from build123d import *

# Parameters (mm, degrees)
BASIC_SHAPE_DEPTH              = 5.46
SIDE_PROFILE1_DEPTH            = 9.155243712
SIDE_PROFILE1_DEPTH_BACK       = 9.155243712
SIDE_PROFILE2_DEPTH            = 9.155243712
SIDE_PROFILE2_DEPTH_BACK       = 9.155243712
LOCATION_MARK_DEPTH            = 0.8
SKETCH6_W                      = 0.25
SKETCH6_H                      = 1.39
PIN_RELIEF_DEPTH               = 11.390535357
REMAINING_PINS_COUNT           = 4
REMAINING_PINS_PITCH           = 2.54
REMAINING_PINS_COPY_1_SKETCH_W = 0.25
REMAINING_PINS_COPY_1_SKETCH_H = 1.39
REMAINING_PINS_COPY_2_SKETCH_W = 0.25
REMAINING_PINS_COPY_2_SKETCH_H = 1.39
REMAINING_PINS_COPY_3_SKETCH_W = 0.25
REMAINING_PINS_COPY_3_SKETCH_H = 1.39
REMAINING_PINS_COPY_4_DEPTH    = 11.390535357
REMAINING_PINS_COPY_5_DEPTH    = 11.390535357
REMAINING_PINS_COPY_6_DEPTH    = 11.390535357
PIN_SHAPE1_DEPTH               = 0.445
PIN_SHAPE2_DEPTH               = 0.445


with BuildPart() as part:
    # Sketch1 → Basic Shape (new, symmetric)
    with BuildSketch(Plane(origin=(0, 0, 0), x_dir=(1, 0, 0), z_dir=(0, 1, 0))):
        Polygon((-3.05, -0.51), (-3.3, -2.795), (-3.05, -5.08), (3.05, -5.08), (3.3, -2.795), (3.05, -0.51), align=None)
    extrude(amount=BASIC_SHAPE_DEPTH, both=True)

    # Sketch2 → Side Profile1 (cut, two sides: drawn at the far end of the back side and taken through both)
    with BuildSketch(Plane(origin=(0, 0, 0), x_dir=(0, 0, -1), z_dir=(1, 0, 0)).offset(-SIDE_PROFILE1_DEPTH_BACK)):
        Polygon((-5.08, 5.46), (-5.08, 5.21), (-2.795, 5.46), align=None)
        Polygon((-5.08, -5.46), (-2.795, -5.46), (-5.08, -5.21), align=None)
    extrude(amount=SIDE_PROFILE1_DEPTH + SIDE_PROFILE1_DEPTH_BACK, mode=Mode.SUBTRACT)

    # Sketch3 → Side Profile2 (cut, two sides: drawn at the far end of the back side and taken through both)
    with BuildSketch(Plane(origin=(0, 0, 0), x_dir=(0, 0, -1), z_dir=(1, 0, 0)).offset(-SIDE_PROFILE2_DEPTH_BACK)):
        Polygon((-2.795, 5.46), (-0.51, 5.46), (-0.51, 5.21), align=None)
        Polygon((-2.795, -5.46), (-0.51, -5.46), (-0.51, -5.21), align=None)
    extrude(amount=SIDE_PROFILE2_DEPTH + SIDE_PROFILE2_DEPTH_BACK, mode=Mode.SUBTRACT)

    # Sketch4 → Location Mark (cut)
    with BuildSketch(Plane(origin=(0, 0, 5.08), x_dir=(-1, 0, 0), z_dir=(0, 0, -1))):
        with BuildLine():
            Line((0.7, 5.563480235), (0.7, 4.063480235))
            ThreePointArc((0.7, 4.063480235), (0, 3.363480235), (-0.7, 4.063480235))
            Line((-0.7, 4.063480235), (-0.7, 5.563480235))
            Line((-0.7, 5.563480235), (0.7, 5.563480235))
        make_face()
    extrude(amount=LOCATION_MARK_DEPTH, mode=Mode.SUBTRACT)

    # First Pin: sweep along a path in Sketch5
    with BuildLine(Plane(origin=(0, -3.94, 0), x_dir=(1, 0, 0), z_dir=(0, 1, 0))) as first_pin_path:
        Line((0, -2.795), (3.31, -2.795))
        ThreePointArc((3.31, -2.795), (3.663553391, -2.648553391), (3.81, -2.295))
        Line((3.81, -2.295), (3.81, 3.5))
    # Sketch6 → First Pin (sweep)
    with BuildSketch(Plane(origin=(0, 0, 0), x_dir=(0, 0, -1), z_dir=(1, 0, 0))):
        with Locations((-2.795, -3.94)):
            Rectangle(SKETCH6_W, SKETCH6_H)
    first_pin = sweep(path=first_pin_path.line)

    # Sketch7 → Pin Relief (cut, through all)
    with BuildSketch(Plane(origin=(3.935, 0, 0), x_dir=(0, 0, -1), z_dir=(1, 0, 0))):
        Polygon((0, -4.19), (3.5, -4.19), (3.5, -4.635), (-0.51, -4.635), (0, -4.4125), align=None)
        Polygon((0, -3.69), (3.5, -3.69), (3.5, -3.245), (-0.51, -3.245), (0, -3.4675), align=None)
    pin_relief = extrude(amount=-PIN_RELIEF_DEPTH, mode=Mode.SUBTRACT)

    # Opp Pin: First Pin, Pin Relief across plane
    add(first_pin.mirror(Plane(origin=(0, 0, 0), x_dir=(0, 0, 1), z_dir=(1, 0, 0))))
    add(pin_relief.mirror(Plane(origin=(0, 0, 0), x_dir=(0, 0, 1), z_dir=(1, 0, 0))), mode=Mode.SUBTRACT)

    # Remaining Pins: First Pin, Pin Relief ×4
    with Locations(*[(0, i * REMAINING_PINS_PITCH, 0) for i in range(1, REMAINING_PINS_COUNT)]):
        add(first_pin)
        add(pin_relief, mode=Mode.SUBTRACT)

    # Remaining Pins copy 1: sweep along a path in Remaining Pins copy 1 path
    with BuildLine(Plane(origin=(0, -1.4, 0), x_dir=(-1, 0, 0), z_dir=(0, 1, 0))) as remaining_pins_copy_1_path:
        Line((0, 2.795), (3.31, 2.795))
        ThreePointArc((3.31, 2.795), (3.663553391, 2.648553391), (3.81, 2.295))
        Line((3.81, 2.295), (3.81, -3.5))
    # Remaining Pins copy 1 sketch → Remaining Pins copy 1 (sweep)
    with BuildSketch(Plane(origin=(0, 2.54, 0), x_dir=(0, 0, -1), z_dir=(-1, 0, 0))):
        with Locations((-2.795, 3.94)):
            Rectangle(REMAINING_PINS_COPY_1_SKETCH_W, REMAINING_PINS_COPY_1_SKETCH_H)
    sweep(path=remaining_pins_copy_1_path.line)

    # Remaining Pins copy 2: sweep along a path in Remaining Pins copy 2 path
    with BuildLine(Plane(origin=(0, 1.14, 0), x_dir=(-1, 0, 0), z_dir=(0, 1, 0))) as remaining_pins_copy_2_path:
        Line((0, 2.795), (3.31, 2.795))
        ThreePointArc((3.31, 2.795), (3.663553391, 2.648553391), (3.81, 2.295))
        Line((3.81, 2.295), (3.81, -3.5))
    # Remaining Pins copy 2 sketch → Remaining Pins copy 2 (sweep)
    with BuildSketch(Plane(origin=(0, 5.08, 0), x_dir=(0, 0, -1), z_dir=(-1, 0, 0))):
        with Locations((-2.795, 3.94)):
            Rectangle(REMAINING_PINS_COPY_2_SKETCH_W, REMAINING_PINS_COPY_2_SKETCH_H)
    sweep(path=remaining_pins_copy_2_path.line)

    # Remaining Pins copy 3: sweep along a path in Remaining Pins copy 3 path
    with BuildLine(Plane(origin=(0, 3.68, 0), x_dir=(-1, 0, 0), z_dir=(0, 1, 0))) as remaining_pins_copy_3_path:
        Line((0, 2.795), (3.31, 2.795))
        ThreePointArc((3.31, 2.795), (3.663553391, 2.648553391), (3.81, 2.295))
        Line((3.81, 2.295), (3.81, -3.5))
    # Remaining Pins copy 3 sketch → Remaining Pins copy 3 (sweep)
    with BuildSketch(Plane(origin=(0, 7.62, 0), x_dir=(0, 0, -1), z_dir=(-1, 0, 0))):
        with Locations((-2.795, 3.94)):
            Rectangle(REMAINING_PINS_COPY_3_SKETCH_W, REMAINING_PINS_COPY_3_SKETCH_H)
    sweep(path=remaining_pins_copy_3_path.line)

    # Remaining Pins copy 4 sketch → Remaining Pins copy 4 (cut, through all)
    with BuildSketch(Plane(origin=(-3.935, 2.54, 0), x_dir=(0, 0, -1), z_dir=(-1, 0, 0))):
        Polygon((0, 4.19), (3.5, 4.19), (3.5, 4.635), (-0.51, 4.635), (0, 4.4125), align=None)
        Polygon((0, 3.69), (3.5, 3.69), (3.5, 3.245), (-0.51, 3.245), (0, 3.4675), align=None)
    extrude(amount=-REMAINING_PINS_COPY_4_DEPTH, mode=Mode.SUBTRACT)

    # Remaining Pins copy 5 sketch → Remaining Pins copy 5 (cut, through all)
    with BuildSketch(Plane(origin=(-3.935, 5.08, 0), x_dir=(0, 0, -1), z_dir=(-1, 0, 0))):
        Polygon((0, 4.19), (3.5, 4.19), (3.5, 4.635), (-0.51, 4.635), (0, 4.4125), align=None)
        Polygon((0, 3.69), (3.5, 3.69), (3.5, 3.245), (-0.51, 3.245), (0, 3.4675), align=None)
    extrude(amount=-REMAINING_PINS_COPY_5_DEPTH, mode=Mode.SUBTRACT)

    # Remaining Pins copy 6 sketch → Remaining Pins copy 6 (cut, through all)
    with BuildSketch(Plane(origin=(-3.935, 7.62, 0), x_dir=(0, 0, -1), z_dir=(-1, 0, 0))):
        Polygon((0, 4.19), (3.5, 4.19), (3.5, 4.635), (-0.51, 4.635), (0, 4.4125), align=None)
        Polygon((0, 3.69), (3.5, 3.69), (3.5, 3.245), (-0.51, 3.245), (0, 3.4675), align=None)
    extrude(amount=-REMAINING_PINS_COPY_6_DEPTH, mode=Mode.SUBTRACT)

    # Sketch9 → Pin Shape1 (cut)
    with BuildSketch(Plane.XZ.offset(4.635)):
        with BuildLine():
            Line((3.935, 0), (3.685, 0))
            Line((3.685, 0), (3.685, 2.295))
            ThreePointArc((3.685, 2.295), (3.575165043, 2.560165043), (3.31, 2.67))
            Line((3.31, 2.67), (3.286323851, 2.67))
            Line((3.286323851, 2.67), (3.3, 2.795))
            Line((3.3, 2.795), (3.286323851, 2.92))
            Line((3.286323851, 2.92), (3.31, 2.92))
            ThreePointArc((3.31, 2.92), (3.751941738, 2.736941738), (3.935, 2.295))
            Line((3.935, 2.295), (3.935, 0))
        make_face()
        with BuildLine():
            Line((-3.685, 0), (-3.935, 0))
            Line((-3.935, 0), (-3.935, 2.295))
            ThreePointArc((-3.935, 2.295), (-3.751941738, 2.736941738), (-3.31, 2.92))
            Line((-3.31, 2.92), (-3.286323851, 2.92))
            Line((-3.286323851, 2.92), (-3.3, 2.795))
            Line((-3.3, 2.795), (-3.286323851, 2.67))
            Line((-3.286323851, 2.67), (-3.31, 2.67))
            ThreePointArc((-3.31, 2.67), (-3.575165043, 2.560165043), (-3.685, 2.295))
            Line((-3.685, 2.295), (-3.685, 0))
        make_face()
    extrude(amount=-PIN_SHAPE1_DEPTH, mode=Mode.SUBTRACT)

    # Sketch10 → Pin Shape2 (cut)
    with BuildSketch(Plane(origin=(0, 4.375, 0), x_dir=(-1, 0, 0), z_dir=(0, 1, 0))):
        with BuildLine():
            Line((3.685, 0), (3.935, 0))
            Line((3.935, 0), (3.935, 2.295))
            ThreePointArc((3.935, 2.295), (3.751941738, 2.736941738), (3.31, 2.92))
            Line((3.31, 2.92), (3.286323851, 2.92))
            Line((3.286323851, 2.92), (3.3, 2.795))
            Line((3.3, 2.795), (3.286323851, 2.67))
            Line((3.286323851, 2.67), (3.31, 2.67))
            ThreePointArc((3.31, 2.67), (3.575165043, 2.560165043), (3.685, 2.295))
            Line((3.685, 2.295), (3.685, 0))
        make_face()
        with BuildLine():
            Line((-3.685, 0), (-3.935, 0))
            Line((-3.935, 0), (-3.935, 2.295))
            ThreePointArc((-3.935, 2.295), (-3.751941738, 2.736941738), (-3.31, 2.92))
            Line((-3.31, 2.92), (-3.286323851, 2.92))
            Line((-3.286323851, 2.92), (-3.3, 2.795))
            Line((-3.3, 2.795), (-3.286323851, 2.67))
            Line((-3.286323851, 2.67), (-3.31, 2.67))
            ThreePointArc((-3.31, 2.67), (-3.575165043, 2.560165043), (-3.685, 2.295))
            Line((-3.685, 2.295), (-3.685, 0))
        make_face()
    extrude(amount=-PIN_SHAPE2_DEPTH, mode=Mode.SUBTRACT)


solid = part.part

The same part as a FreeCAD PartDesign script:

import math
import FreeCAD as App
import Part
import Sketcher

V = App.Vector

doc = App.newDocument("Part")
params = doc.addObject("Spreadsheet::Sheet", "Params")
for row, (alias, value) in enumerate([
    ("sketch1_width", "6.1 mm"),
    ("pad1_length", "10.92 mm"),
    ("sketch2_width", "0.25 mm"),
    ("sketch3_width", "0.25 mm"),
    ("sketch4_radius", "0.7 mm"),
    ("sketch4_height", "1.5 mm"),
    ("pocket3_length", "0.8 mm"),
    ("sketch5_width", "1.39 mm"),
    ("sketch5_height", "0.25 mm"),
    ("sketch6_radius", "0.5 mm"),
    ("sketch6_width", "3.31 mm"),
    ("sketch7_height", "3.5 mm"),
    ("sketch7_height2", "4.01 mm"),
    ("linearpattern_pitch", "2.54 mm"),
    ("sketch8_width", "1.39 mm"),
    ("sketch8_height", "0.25 mm"),
    ("sketch9_radius", "0.5 mm"),
    ("sketch9_width", "3.31 mm"),
    ("sketch10_width", "1.39 mm"),
    ("sketch10_height", "0.25 mm"),
    ("sketch11_radius", "0.5 mm"),
    ("sketch11_width", "3.31 mm"),
    ("sketch12_width", "1.39 mm"),
    ("sketch12_height", "0.25 mm"),
    ("sketch13_radius", "0.5 mm"),
    ("sketch13_width", "3.31 mm"),
    ("sketch14_height", "3.5 mm"),
    ("sketch14_height2", "4.01 mm"),
    ("sketch15_height", "3.5 mm"),
    ("sketch15_height2", "4.01 mm"),
    ("sketch16_height", "3.5 mm"),
    ("sketch16_height2", "4.01 mm"),
    ("pocket8_length", "0.445 mm"),
    ("pocket9_length", "0.445 mm"),
], start=1):
    params.set(f"A{row}", alias)
    params.set(f"B{row}", "=" + value)
    params.setAlias(f"B{row}", alias)

body = doc.addObject("PartDesign::Body", "Body")

sketch1 = body.newObject("Sketcher::SketchObject", "Sketch")
sketch1.AttachmentSupport = (doc.getObject("XZ_Plane"), [""])
sketch1.MapMode = "FlatFace"
sketch1.addGeometry([
    Part.LineSegment(V(-3, 0.5, 0), V(-3.3, 2.8, 0)),
    Part.LineSegment(V(-3.3, 2.8, 0), V(-3, 5.1, 0)),
    Part.LineSegment(V(-3, 5.1, 0), V(3, 5.1, 0)),
    Part.LineSegment(V(3, 5.1, 0), V(3.3, 2.8, 0)),
    Part.LineSegment(V(3.3, 2.8, 0), V(3, 0.5, 0)),
    Part.LineSegment(V(3, 0.5, 0), V(-3, 0.5, 0)),
], False)
sketch1.addConstraint([
    Sketcher.Constraint("Coincident", 0, 2, 1, 1),
    Sketcher.Constraint("Coincident", 1, 2, 2, 1),
    Sketcher.Constraint("Coincident", 2, 2, 3, 1),
    Sketcher.Constraint("Coincident", 3, 2, 4, 1),
    Sketcher.Constraint("Coincident", 4, 2, 5, 1),
    Sketcher.Constraint("Coincident", 5, 2, 0, 1),
    Sketcher.Constraint("Horizontal", 2),
    Sketcher.Constraint("Horizontal", 5),
    Sketcher.Constraint("Symmetric", 0, 2, 3, 2, -2),
    Sketcher.Constraint("Parallel", 0, 3),
    Sketcher.Constraint("Parallel", 1, 4),
    Sketcher.Constraint("Vertical", 2, 2, 4, 2),
    Sketcher.Constraint("Vertical", 1, 2, 5, 2),
    Sketcher.Constraint("DistanceX", 2, 1, 2, 2, 6.1),
    Sketcher.Constraint("DistanceX", 0, 2, -1, 1, 3.3),
    Sketcher.Constraint("DistanceY", -1, 1, 1, 2, 5.08),
    Sketcher.Constraint("DistanceY", -1, 1, 4, 2, 0.51),
])
sketch1.setExpression("Constraints[13]", "Params.sketch1_width")
pad1 = body.newObject("PartDesign::Pad", "Pad")
pad1.Profile = sketch1
pad1.setExpression("Length", "Params.pad1_length")
pad1.Midplane = True

sketch2 = body.newObject("Sketcher::SketchObject", "Sketch001")
sketch2.AttachmentSupport = (doc.getObject("YZ_Plane"), [""])
sketch2.MapMode = "FlatFace"
sketch2.addGeometry([
    Part.LineSegment(V(5.46, 5.08, 0), V(5.21, 5.08, 0)),
    Part.LineSegment(V(5.21, 5.08, 0), V(5.46, 2.79, 0)),
    Part.LineSegment(V(5.46, 2.79, 0), V(5.46, 5.08, 0)),
    Part.LineSegment(V(-5.46, 5.08, 0), V(-5.46, 2.79, 0)),
    Part.LineSegment(V(-5.46, 2.79, 0), V(-5.21, 5.08, 0)),
    Part.LineSegment(V(-5.21, 5.08, 0), V(-5.46, 5.08, 0)),
], False)
sketch2.addConstraint([
    Sketcher.Constraint("Coincident", 0, 2, 1, 1),
    Sketcher.Constraint("Coincident", 1, 2, 2, 1),
    Sketcher.Constraint("Coincident", 2, 2, 0, 1),
    Sketcher.Constraint("Coincident", 3, 2, 4, 1),
    Sketcher.Constraint("Coincident", 4, 2, 5, 1),
    Sketcher.Constraint("Coincident", 5, 2, 3, 1),
    Sketcher.Constraint("Horizontal", 0),
    Sketcher.Constraint("Vertical", 2),
    Sketcher.Constraint("Vertical", 3),
    Sketcher.Constraint("Horizontal", 5),
    Sketcher.Constraint("Symmetric", 1, 2, 3, 2, -2),
    Sketcher.Constraint("Symmetric", 0, 2, 4, 2, -2),
    Sketcher.Constraint("DistanceX", 0, 2, 0, 1, 0.25),
    Sketcher.Constraint("DistanceY", 2, 1, 2, 2, 2.285),
    Sketcher.Constraint("DistanceX", -1, 1, 0, 2, 5.21),
    Sketcher.Constraint("DistanceY", -1, 1, 0, 2, 5.08),
])
sketch2.setExpression("Constraints[12]", "Params.sketch2_width")
pocket1 = body.newObject("PartDesign::Pocket", "Pocket")
pocket1.Profile = sketch2
pocket1.Type = "ThroughAll"
pocket1.Midplane = True

sketch3 = body.newObject("Sketcher::SketchObject", "Sketch002")
sketch3.AttachmentSupport = (doc.getObject("YZ_Plane"), [""])
sketch3.MapMode = "FlatFace"
sketch3.addGeometry([
    Part.LineSegment(V(5.46, 0.51, 0), V(5.46, 2.79, 0)),
    Part.LineSegment(V(5.46, 2.79, 0), V(5.21, 0.51, 0)),
    Part.LineSegment(V(5.21, 0.51, 0), V(5.46, 0.51, 0)),
    Part.LineSegment(V(-5.46, 2.79, 0), V(-5.46, 0.51, 0)),
    Part.LineSegment(V(-5.46, 0.51, 0), V(-5.21, 0.51, 0)),
    Part.LineSegment(V(-5.21, 0.51, 0), V(-5.46, 2.79, 0)),
], False)
sketch3.addConstraint([
    Sketcher.Constraint("Coincident", 0, 2, 1, 1),
    Sketcher.Constraint("Coincident", 1, 2, 2, 1),
    Sketcher.Constraint("Coincident", 2, 2, 0, 1),
    Sketcher.Constraint("Coincident", 3, 2, 4, 1),
    Sketcher.Constraint("Coincident", 4, 2, 5, 1),
    Sketcher.Constraint("Coincident", 5, 2, 3, 1),
    Sketcher.Constraint("Vertical", 0),
    Sketcher.Constraint("Horizontal", 2),
    Sketcher.Constraint("Vertical", 3),
    Sketcher.Constraint("Horizontal", 4),
    Sketcher.Constraint("Symmetric", 2, 2, 3, 2, -2),
    Sketcher.Constraint("Horizontal", 0, 2, 5, 2),
    Sketcher.Constraint("Equal", 2, 4),
    Sketcher.Constraint("DistanceX", 2, 1, 2, 2, 0.25),
    Sketcher.Constraint("DistanceY", 0, 1, 0, 2, 2.285),
    Sketcher.Constraint("DistanceX", -1, 1, 0, 2, 5.46),
    Sketcher.Constraint("DistanceY", -1, 1, 1, 2, 0.51),
])
sketch3.setExpression("Constraints[13]", "Params.sketch3_width")
pocket2 = body.newObject("PartDesign::Pocket", "Pocket001")
pocket2.Profile = sketch3
pocket2.Type = "ThroughAll"
pocket2.Midplane = True

sketch4 = body.newObject("Sketcher::SketchObject", "Sketch003")
sketch4.AttachmentSupport = (doc.getObject("XY_Plane"), [""])
sketch4.MapMode = "FlatFace"
sketch4.AttachmentOffset = App.Placement(V(0, 0, 5.08), App.Rotation())
sketch4.addGeometry([
    Part.LineSegment(V(-0.7, 4.1, 0), V(-0.7, 5.6, 0)),
    Part.LineSegment(V(-0.7, 5.6, 0), V(0.7, 5.6, 0)),
    Part.LineSegment(V(0.7, 5.6, 0), V(0.7, 4.1, 0)),
    Part.ArcOfCircle(Part.Circle(V(0, 4.1, 0), V(0, 0, 1), 0.7), math.radians(180), math.radians(360)),
], False)
sketch4.addConstraint([
    Sketcher.Constraint("Coincident", 0, 2, 1, 1),
    Sketcher.Constraint("Coincident", 1, 2, 2, 1),
    Sketcher.Constraint("Tangent", 2, 2, 3, 2),
    Sketcher.Constraint("Tangent", 3, 1, 0, 1),
    Sketcher.Constraint("Vertical", 0),
    Sketcher.Constraint("Horizontal", 1),
    Sketcher.Constraint("Vertical", 2),
    Sketcher.Constraint("PointOnObject", 3, 3, -2),
    Sketcher.Constraint("Radius", 3, 0.7),
    Sketcher.Constraint("DistanceY", 0, 1, 0, 2, 1.5),
    Sketcher.Constraint("DistanceY", -1, 1, 3, 3, 4.06348),
])
sketch4.setExpression("Constraints[8]", "Params.sketch4_radius")
sketch4.setExpression("Constraints[9]", "Params.sketch4_height")
pocket3 = body.newObject("PartDesign::Pocket", "Pocket002")
pocket3.Profile = sketch4
pocket3.setExpression("Length", "Params.pocket3_length")

sketch5 = body.newObject("Sketcher::SketchObject", "Sketch004")
sketch5.AttachmentSupport = (doc.getObject("YZ_Plane"), [""])
sketch5.MapMode = "FlatFace"
sketch5.addGeometry([
    Part.LineSegment(V(-3.25, 2.92, 0), V(-4.63, 2.92, 0)),
    Part.LineSegment(V(-4.63, 2.92, 0), V(-4.63, 2.67, 0)),
    Part.LineSegment(V(-4.63, 2.67, 0), V(-3.25, 2.67, 0)),
    Part.LineSegment(V(-3.25, 2.67, 0), V(-3.25, 2.92, 0)),
], False)
sketch5.addConstraint([
    Sketcher.Constraint("Coincident", 0, 2, 1, 1),
    Sketcher.Constraint("Coincident", 1, 2, 2, 1),
    Sketcher.Constraint("Coincident", 2, 2, 3, 1),
    Sketcher.Constraint("Coincident", 3, 2, 0, 1),
    Sketcher.Constraint("Horizontal", 0),
    Sketcher.Constraint("Vertical", 1),
    Sketcher.Constraint("Horizontal", 2),
    Sketcher.Constraint("Vertical", 3),
    Sketcher.Constraint("DistanceX", 0, 2, 0, 1, 1.39),
    Sketcher.Constraint("DistanceY", 1, 2, 1, 1, 0.25),
    Sketcher.Constraint("DistanceY", -1, 1, 0, 2, 2.92),
    Sketcher.Constraint("DistanceX", 0, 2, -1, 1, 4.635),
])
sketch5.setExpression("Constraints[8]", "Params.sketch5_width")
sketch5.setExpression("Constraints[9]", "Params.sketch5_height")

sketch6 = body.newObject("Sketcher::SketchObject", "Sketch005")
sketch6.AttachmentSupport = (doc.getObject("XZ_Plane"), [""])
sketch6.MapMode = "FlatFace"
sketch6.AttachmentOffset = App.Placement(V(0, 0, 3.94), App.Rotation())
sketch6.addGeometry([
    Part.LineSegment(V(0, 2.79, 0), V(3.31, 2.79, 0)),
    Part.ArcOfCircle(Part.Circle(V(3.31, 2.3, 0), V(0, 0, 1), 0.5), math.radians(0), math.radians(90)),
    Part.LineSegment(V(3.81, 2.29, 0), V(3.81, -3.5, 0)),
], False)
sketch6.addConstraint([
    Sketcher.Constraint("Tangent", 0, 2, 1, 2),
    Sketcher.Constraint("Tangent", 1, 1, 2, 1),
    Sketcher.Constraint("Horizontal", 0),
    Sketcher.Constraint("Vertical", 2),
    Sketcher.Constraint("PointOnObject", 0, 1, -2),
    Sketcher.Constraint("Radius", 1, 0.5),
    Sketcher.Constraint("DistanceX", 0, 1, 0, 2, 3.31),
    Sketcher.Constraint("DistanceY", 2, 2, -1, 1, 3.5),
    Sketcher.Constraint("DistanceY", 2, 2, 2, 1, 5.795),
])
sketch6.setExpression("Constraints[5]", "Params.sketch6_radius")
sketch6.setExpression("Constraints[6]", "Params.sketch6_width")
doc.recompute()

additivepipe = body.newObject("PartDesign::AdditivePipe", "AdditivePipe")
additivepipe.Profile = sketch5
additivepipe.Spine = (sketch6, ["Edge1", "Edge2", "Edge3"])

sketch7 = body.newObject("Sketcher::SketchObject", "Sketch006")
sketch7.AttachmentSupport = (doc.getObject("YZ_Plane"), [""])
sketch7.MapMode = "FlatFace"
sketch7.AttachmentOffset = App.Placement(V(0, 0, 3.935), App.Rotation())
sketch7.addGeometry([
    Part.LineSegment(V(-4.19, -3.5, 0), V(-4.19, 0, 0)),
    Part.LineSegment(V(-4.19, 0, 0), V(-4.41, 0, 0)),
    Part.LineSegment(V(-4.41, 0, 0), V(-4.63, 0.51, 0)),
    Part.LineSegment(V(-4.63, 0.51, 0), V(-4.63, -3.5, 0)),
    Part.LineSegment(V(-4.63, -3.5, 0), V(-4.19, -3.5, 0)),
    Part.LineSegment(V(-3.69, 0, 0), V(-3.69, -3.5, 0)),
    Part.LineSegment(V(-3.69, -3.5, 0), V(-3.25, -3.5, 0)),
    Part.LineSegment(V(-3.25, -3.5, 0), V(-3.25, 0.51, 0)),
    Part.LineSegment(V(-3.25, 0.51, 0), V(-3.47, 0, 0)),
    Part.LineSegment(V(-3.47, 0, 0), V(-3.69, 0, 0)),
], False)
sketch7.addConstraint([
    Sketcher.Constraint("Coincident", 0, 2, 1, 1),
    Sketcher.Constraint("Coincident", 1, 2, 2, 1),
    Sketcher.Constraint("Coincident", 2, 2, 3, 1),
    Sketcher.Constraint("Coincident", 3, 2, 4, 1),
    Sketcher.Constraint("Coincident", 4, 2, 0, 1),
    Sketcher.Constraint("Coincident", 5, 2, 6, 1),
    Sketcher.Constraint("Coincident", 6, 2, 7, 1),
    Sketcher.Constraint("Coincident", 7, 2, 8, 1),
    Sketcher.Constraint("Coincident", 8, 2, 9, 1),
    Sketcher.Constraint("Coincident", 9, 2, 5, 1),
    Sketcher.Constraint("Vertical", 0),
    Sketcher.Constraint("Horizontal", 1),
    Sketcher.Constraint("Vertical", 3),
    Sketcher.Constraint("Horizontal", 4),
    Sketcher.Constraint("Vertical", 5),
    Sketcher.Constraint("Horizontal", 6),
    Sketcher.Constraint("Vertical", 7),
    Sketcher.Constraint("Horizontal", 9),
    Sketcher.Constraint("PointOnObject", 0, 2, -1),
    Sketcher.Constraint("PointOnObject", 8, 2, -1),
    Sketcher.Constraint("Horizontal", 4, 2, 5, 2),
    Sketcher.Constraint("Horizontal", 2, 2, 7, 2),
    Sketcher.Constraint("Equal", 4, 6),
    Sketcher.Constraint("Equal", 1, 9),
    Sketcher.Constraint("DistanceY", 0, 1, 0, 2, 3.5),
    Sketcher.Constraint("DistanceY", 3, 2, 3, 1, 4.01),
    Sketcher.Constraint("DistanceX", 4, 2, 5, 2, 0.5),
    Sketcher.Constraint("DistanceX", 4, 1, 4, 2, 0.445),
    Sketcher.Constraint("DistanceX", 0, 2, -1, 1, 4.19),
    Sketcher.Constraint("DistanceX", 1, 2, 1, 1, 0.2225),
])
sketch7.setExpression("Constraints[24]", "Params.sketch7_height")
sketch7.setExpression("Constraints[25]", "Params.sketch7_height2")
pocket4 = body.newObject("PartDesign::Pocket", "Pocket003")
pocket4.Profile = sketch7
pocket4.Type = "ThroughAll"
doc.recompute()

mirrored = body.newObject("PartDesign::Mirrored", "Mirrored")
mirrored.Originals = [additivepipe, pocket4]
mirrored.MirrorPlane = (doc.getObject("YZ_Plane"), [""])
body.Tip = mirrored
doc.recompute()

linearpattern = body.newObject("PartDesign::LinearPattern", "LinearPattern")
linearpattern.Originals = [additivepipe, pocket4]
linearpattern.Direction = (doc.getObject("Y_Axis"), [""])
linearpattern.Mode = "offset"
linearpattern.setExpression("Offset", "Params.linearpattern_pitch")
linearpattern.Occurrences = 4
body.Tip = linearpattern

sketch8 = body.newObject("Sketcher::SketchObject", "Sketch007")
sketch8.AttachmentSupport = (doc.getObject("YZ_Plane"), [""])
sketch8.MapMode = "FlatFace"
sketch8.addGeometry([
    Part.LineSegment(V(-2.1, 2.92, 0), V(-0.7, 2.92, 0)),
    Part.LineSegment(V(-0.7, 2.92, 0), V(-0.7, 2.67, 0)),
    Part.LineSegment(V(-0.7, 2.67, 0), V(-2.1, 2.67, 0)),
    Part.LineSegment(V(-2.1, 2.67, 0), V(-2.1, 2.92, 0)),
], False)
sketch8.addConstraint([
    Sketcher.Constraint("Coincident", 0, 2, 1, 1),
    Sketcher.Constraint("Coincident", 1, 2, 2, 1),
    Sketcher.Constraint("Coincident", 2, 2, 3, 1),
    Sketcher.Constraint("Coincident", 3, 2, 0, 1),
    Sketcher.Constraint("Horizontal", 0),
    Sketcher.Constraint("Vertical", 1),
    Sketcher.Constraint("Horizontal", 2),
    Sketcher.Constraint("Vertical", 3),
    Sketcher.Constraint("DistanceX", 0, 1, 0, 2, 1.39),
    Sketcher.Constraint("DistanceY", 1, 2, 1, 1, 0.25),
    Sketcher.Constraint("DistanceY", -1, 1, 0, 2, 2.92),
    Sketcher.Constraint("DistanceX", 0, 2, -1, 1, 0.705),
])
sketch8.setExpression("Constraints[8]", "Params.sketch8_width")
sketch8.setExpression("Constraints[9]", "Params.sketch8_height")

sketch9 = body.newObject("Sketcher::SketchObject", "Sketch008")
sketch9.AttachmentSupport = (doc.getObject("XZ_Plane"), [""])
sketch9.MapMode = "FlatFace"
sketch9.AttachmentOffset = App.Placement(V(0, 0, 1.4), App.Rotation())
sketch9.addGeometry([
    Part.LineSegment(V(0, 2.79, 0), V(-3.31, 2.79, 0)),
    Part.ArcOfCircle(Part.Circle(V(-3.31, 2.3, 0), V(0, 0, 1), 0.5), math.radians(90), math.radians(180)),
    Part.LineSegment(V(-3.81, 2.29, 0), V(-3.81, -3.5, 0)),
], False)
sketch9.addConstraint([
    Sketcher.Constraint("Tangent", 0, 2, 1, 1),
    Sketcher.Constraint("Tangent", 1, 2, 2, 1),
    Sketcher.Constraint("Horizontal", 0),
    Sketcher.Constraint("Vertical", 2),
    Sketcher.Constraint("PointOnObject", 0, 1, -2),
    Sketcher.Constraint("Radius", 1, 0.5),
    Sketcher.Constraint("DistanceX", 0, 2, 0, 1, 3.31),
    Sketcher.Constraint("DistanceY", 2, 2, -1, 1, 3.5),
    Sketcher.Constraint("DistanceY", 2, 2, 2, 1, 5.795),
])
sketch9.setExpression("Constraints[5]", "Params.sketch9_radius")
sketch9.setExpression("Constraints[6]", "Params.sketch9_width")
doc.recompute()

additivepipe2 = body.newObject("PartDesign::AdditivePipe", "AdditivePipe001")
additivepipe2.Profile = sketch8
additivepipe2.Spine = (sketch9, ["Edge1", "Edge2", "Edge3"])

sketch10 = body.newObject("Sketcher::SketchObject", "Sketch009")
sketch10.AttachmentSupport = (doc.getObject("YZ_Plane"), [""])
sketch10.MapMode = "FlatFace"
sketch10.addGeometry([
    Part.LineSegment(V(0.45, 2.92, 0), V(1.83, 2.92, 0)),
    Part.LineSegment(V(1.83, 2.92, 0), V(1.83, 2.67, 0)),
    Part.LineSegment(V(1.83, 2.67, 0), V(0.45, 2.67, 0)),
    Part.LineSegment(V(0.45, 2.67, 0), V(0.45, 2.92, 0)),
], False)
sketch10.addConstraint([
    Sketcher.Constraint("Coincident", 0, 2, 1, 1),
    Sketcher.Constraint("Coincident", 1, 2, 2, 1),
    Sketcher.Constraint("Coincident", 2, 2, 3, 1),
    Sketcher.Constraint("Coincident", 3, 2, 0, 1),
    Sketcher.Constraint("Horizontal", 0),
    Sketcher.Constraint("Vertical", 1),
    Sketcher.Constraint("Horizontal", 2),
    Sketcher.Constraint("Vertical", 3),
    Sketcher.Constraint("DistanceX", 0, 1, 0, 2, 1.39),
    Sketcher.Constraint("DistanceY", 1, 2, 1, 1, 0.25),
    Sketcher.Constraint("DistanceY", -1, 1, 0, 2, 2.92),
    Sketcher.Constraint("DistanceX", -1, 1, 0, 2, 1.835),
])
sketch10.setExpression("Constraints[8]", "Params.sketch10_width")
sketch10.setExpression("Constraints[9]", "Params.sketch10_height")

sketch11 = body.newObject("Sketcher::SketchObject", "Sketch010")
sketch11.AttachmentSupport = (doc.getObject("XZ_Plane"), [""])
sketch11.MapMode = "FlatFace"
sketch11.AttachmentOffset = App.Placement(V(0, 0, -1.14), App.Rotation())
sketch11.addGeometry([
    Part.LineSegment(V(0, 2.79, 0), V(-3.31, 2.79, 0)),
    Part.ArcOfCircle(Part.Circle(V(-3.31, 2.3, 0), V(0, 0, 1), 0.5), math.radians(90), math.radians(180)),
    Part.LineSegment(V(-3.81, 2.29, 0), V(-3.81, -3.5, 0)),
], False)
sketch11.addConstraint([
    Sketcher.Constraint("Tangent", 0, 2, 1, 1),
    Sketcher.Constraint("Tangent", 1, 2, 2, 1),
    Sketcher.Constraint("Horizontal", 0),
    Sketcher.Constraint("Vertical", 2),
    Sketcher.Constraint("PointOnObject", 0, 1, -2),
    Sketcher.Constraint("Radius", 1, 0.5),
    Sketcher.Constraint("DistanceX", 0, 2, 0, 1, 3.31),
    Sketcher.Constraint("DistanceY", 2, 2, -1, 1, 3.5),
    Sketcher.Constraint("DistanceY", 2, 2, 2, 1, 5.795),
])
sketch11.setExpression("Constraints[5]", "Params.sketch11_radius")
sketch11.setExpression("Constraints[6]", "Params.sketch11_width")
doc.recompute()

additivepipe3 = body.newObject("PartDesign::AdditivePipe", "AdditivePipe002")
additivepipe3.Profile = sketch10
additivepipe3.Spine = (sketch11, ["Edge1", "Edge2", "Edge3"])

sketch12 = body.newObject("Sketcher::SketchObject", "Sketch011")
sketch12.AttachmentSupport = (doc.getObject("YZ_Plane"), [""])
sketch12.MapMode = "FlatFace"
sketch12.addGeometry([
    Part.LineSegment(V(2.98, 2.92, 0), V(4.38, 2.92, 0)),
    Part.LineSegment(V(4.38, 2.92, 0), V(4.38, 2.67, 0)),
    Part.LineSegment(V(4.38, 2.67, 0), V(2.98, 2.67, 0)),
    Part.LineSegment(V(2.98, 2.67, 0), V(2.98, 2.92, 0)),
], False)
sketch12.addConstraint([
    Sketcher.Constraint("Coincident", 0, 2, 1, 1),
    Sketcher.Constraint("Coincident", 1, 2, 2, 1),
    Sketcher.Constraint("Coincident", 2, 2, 3, 1),
    Sketcher.Constraint("Coincident", 3, 2, 0, 1),
    Sketcher.Constraint("Horizontal", 0),
    Sketcher.Constraint("Vertical", 1),
    Sketcher.Constraint("Horizontal", 2),
    Sketcher.Constraint("Vertical", 3),
    Sketcher.Constraint("DistanceX", 0, 1, 0, 2, 1.39),
    Sketcher.Constraint("DistanceY", 1, 2, 1, 1, 0.25),
    Sketcher.Constraint("DistanceY", -1, 1, 0, 2, 2.92),
    Sketcher.Constraint("DistanceX", -1, 1, 0, 2, 4.375),
])
sketch12.setExpression("Constraints[8]", "Params.sketch12_width")
sketch12.setExpression("Constraints[9]", "Params.sketch12_height")

sketch13 = body.newObject("Sketcher::SketchObject", "Sketch012")
sketch13.AttachmentSupport = (doc.getObject("XZ_Plane"), [""])
sketch13.MapMode = "FlatFace"
sketch13.AttachmentOffset = App.Placement(V(0, 0, -3.68), App.Rotation())
sketch13.addGeometry([
    Part.LineSegment(V(0, 2.79, 0), V(-3.31, 2.79, 0)),
    Part.ArcOfCircle(Part.Circle(V(-3.31, 2.3, 0), V(0, 0, 1), 0.5), math.radians(90), math.radians(180)),
    Part.LineSegment(V(-3.81, 2.29, 0), V(-3.81, -3.5, 0)),
], False)
sketch13.addConstraint([
    Sketcher.Constraint("Tangent", 0, 2, 1, 1),
    Sketcher.Constraint("Tangent", 1, 2, 2, 1),
    Sketcher.Constraint("Horizontal", 0),
    Sketcher.Constraint("Vertical", 2),
    Sketcher.Constraint("PointOnObject", 0, 1, -2),
    Sketcher.Constraint("Radius", 1, 0.5),
    Sketcher.Constraint("DistanceX", 0, 2, 0, 1, 3.31),
    Sketcher.Constraint("DistanceY", 2, 2, -1, 1, 3.5),
    Sketcher.Constraint("DistanceY", 2, 2, 2, 1, 5.795),
])
sketch13.setExpression("Constraints[5]", "Params.sketch13_radius")
sketch13.setExpression("Constraints[6]", "Params.sketch13_width")
doc.recompute()

additivepipe4 = body.newObject("PartDesign::AdditivePipe", "AdditivePipe003")
additivepipe4.Profile = sketch12
additivepipe4.Spine = (sketch13, ["Edge1", "Edge2", "Edge3"])

sketch14 = body.newObject("Sketcher::SketchObject", "Sketch013")
sketch14.AttachmentSupport = (doc.getObject("YZ_Plane"), [""])
sketch14.MapMode = "FlatFace"
sketch14.AttachmentOffset = App.Placement(V(0, 0, -3.935), App.Rotation())
sketch14.addGeometry([
    Part.LineSegment(V(-1.65, 0, 0), V(-1.65, -3.5, 0)),
    Part.LineSegment(V(-1.65, -3.5, 0), V(-2.1, -3.5, 0)),
    Part.LineSegment(V(-2.1, -3.5, 0), V(-2.1, 0.51, 0)),
    Part.LineSegment(V(-2.1, 0.51, 0), V(-1.87, 0, 0)),
    Part.LineSegment(V(-1.87, 0, 0), V(-1.65, 0, 0)),
    Part.LineSegment(V(-1.15, -3.5, 0), V(-1.15, 0, 0)),
    Part.LineSegment(V(-1.15, 0, 0), V(-0.93, 0, 0)),
    Part.LineSegment(V(-0.93, 0, 0), V(-0.7, 0.51, 0)),
    Part.LineSegment(V(-0.7, 0.51, 0), V(-0.7, -3.5, 0)),
    Part.LineSegment(V(-0.7, -3.5, 0), V(-1.15, -3.5, 0)),
], False)
sketch14.addConstraint([
    Sketcher.Constraint("Coincident", 0, 2, 1, 1),
    Sketcher.Constraint("Coincident", 1, 2, 2, 1),
    Sketcher.Constraint("Coincident", 2, 2, 3, 1),
    Sketcher.Constraint("Coincident", 3, 2, 4, 1),
    Sketcher.Constraint("Coincident", 4, 2, 0, 1),
    Sketcher.Constraint("Coincident", 5, 2, 6, 1),
    Sketcher.Constraint("Coincident", 6, 2, 7, 1),
    Sketcher.Constraint("Coincident", 7, 2, 8, 1),
    Sketcher.Constraint("Coincident", 8, 2, 9, 1),
    Sketcher.Constraint("Coincident", 9, 2, 5, 1),
    Sketcher.Constraint("Vertical", 0),
    Sketcher.Constraint("Horizontal", 1),
    Sketcher.Constraint("Vertical", 2),
    Sketcher.Constraint("Horizontal", 4),
    Sketcher.Constraint("Vertical", 5),
    Sketcher.Constraint("Horizontal", 6),
    Sketcher.Constraint("Vertical", 8),
    Sketcher.Constraint("Horizontal", 9),
    Sketcher.Constraint("PointOnObject", 3, 2, -1),
    Sketcher.Constraint("PointOnObject", 5, 2, -1),
    Sketcher.Constraint("Horizontal", 2, 2, 7, 2),
    Sketcher.Constraint("Horizontal", 1, 2, 8, 2),
    Sketcher.Constraint("Equal", 4, 6),
    Sketcher.Constraint("Equal", 1, 9),
    Sketcher.Constraint("DistanceY", 0, 2, 0, 1, 3.5),
    Sketcher.Constraint("DistanceY", 2, 1, 2, 2, 4.01),
    Sketcher.Constraint("DistanceX", 4, 2, 5, 2, 0.5),
    Sketcher.Constraint("DistanceX", 1, 2, 1, 1, 0.445),
    Sketcher.Constraint("DistanceX", 0, 2, -1, 1, 1.65),
    Sketcher.Constraint("DistanceX", 4, 1, 4, 2, 0.2225),
])
sketch14.setExpression("Constraints[24]", "Params.sketch14_height")
sketch14.setExpression("Constraints[25]", "Params.sketch14_height2")
pocket5 = body.newObject("PartDesign::Pocket", "Pocket004")
pocket5.Profile = sketch14
pocket5.Type = "ThroughAll"
pocket5.Reversed = True

sketch15 = body.newObject("Sketcher::SketchObject", "Sketch014")
sketch15.AttachmentSupport = (doc.getObject("YZ_Plane"), [""])
sketch15.MapMode = "FlatFace"
sketch15.AttachmentOffset = App.Placement(V(0, 0, -3.935), App.Rotation())
sketch15.addGeometry([
    Part.LineSegment(V(0.89, 0, 0), V(0.89, -3.5, 0)),
    Part.LineSegment(V(0.89, -3.5, 0), V(0.45, -3.5, 0)),
    Part.LineSegment(V(0.45, -3.5, 0), V(0.45, 0.51, 0)),
    Part.LineSegment(V(0.45, 0.51, 0), V(0.67, 0, 0)),
    Part.LineSegment(V(0.67, 0, 0), V(0.89, 0, 0)),
    Part.LineSegment(V(1.39, -3.5, 0), V(1.39, 0, 0)),
    Part.LineSegment(V(1.39, 0, 0), V(1.61, 0, 0)),
    Part.LineSegment(V(1.61, 0, 0), V(1.83, 0.51, 0)),
    Part.LineSegment(V(1.83, 0.51, 0), V(1.83, -3.5, 0)),
    Part.LineSegment(V(1.83, -3.5, 0), V(1.39, -3.5, 0)),
], False)
sketch15.addConstraint([
    Sketcher.Constraint("Coincident", 0, 2, 1, 1),
    Sketcher.Constraint("Coincident", 1, 2, 2, 1),
    Sketcher.Constraint("Coincident", 2, 2, 3, 1),
    Sketcher.Constraint("Coincident", 3, 2, 4, 1),
    Sketcher.Constraint("Coincident", 4, 2, 0, 1),
    Sketcher.Constraint("Coincident", 5, 2, 6, 1),
    Sketcher.Constraint("Coincident", 6, 2, 7, 1),
    Sketcher.Constraint("Coincident", 7, 2, 8, 1),
    Sketcher.Constraint("Coincident", 8, 2, 9, 1),
    Sketcher.Constraint("Coincident", 9, 2, 5, 1),
    Sketcher.Constraint("Vertical", 0),
    Sketcher.Constraint("Horizontal", 1),
    Sketcher.Constraint("Vertical", 2),
    Sketcher.Constraint("Horizontal", 4),
    Sketcher.Constraint("Vertical", 5),
    Sketcher.Constraint("Horizontal", 6),
    Sketcher.Constraint("Vertical", 8),
    Sketcher.Constraint("Horizontal", 9),
    Sketcher.Constraint("PointOnObject", 3, 2, -1),
    Sketcher.Constraint("PointOnObject", 5, 2, -1),
    Sketcher.Constraint("Horizontal", 2, 2, 7, 2),
    Sketcher.Constraint("Horizontal", 1, 2, 8, 2),
    Sketcher.Constraint("Equal", 4, 6),
    Sketcher.Constraint("Equal", 1, 9),
    Sketcher.Constraint("DistanceY", 0, 2, 0, 1, 3.5),
    Sketcher.Constraint("DistanceY", 2, 1, 2, 2, 4.01),
    Sketcher.Constraint("DistanceX", 4, 2, 5, 2, 0.5),
    Sketcher.Constraint("DistanceX", 1, 2, 1, 1, 0.445),
    Sketcher.Constraint("DistanceX", -1, 1, 0, 2, 0.89),
    Sketcher.Constraint("DistanceX", 4, 1, 4, 2, 0.2225),
])
sketch15.setExpression("Constraints[24]", "Params.sketch15_height")
sketch15.setExpression("Constraints[25]", "Params.sketch15_height2")
pocket6 = body.newObject("PartDesign::Pocket", "Pocket005")
pocket6.Profile = sketch15
pocket6.Type = "ThroughAll"
pocket6.Reversed = True

sketch16 = body.newObject("Sketcher::SketchObject", "Sketch015")
sketch16.AttachmentSupport = (doc.getObject("YZ_Plane"), [""])
sketch16.MapMode = "FlatFace"
sketch16.AttachmentOffset = App.Placement(V(0, 0, -3.935), App.Rotation())
sketch16.addGeometry([
    Part.LineSegment(V(3.43, 0, 0), V(3.43, -3.5, 0)),
    Part.LineSegment(V(3.43, -3.5, 0), V(2.98, -3.5, 0)),
    Part.LineSegment(V(2.98, -3.5, 0), V(2.98, 0.51, 0)),
    Part.LineSegment(V(2.98, 0.51, 0), V(3.21, 0, 0)),
    Part.LineSegment(V(3.21, 0, 0), V(3.43, 0, 0)),
    Part.LineSegment(V(3.93, -3.5, 0), V(3.93, 0, 0)),
    Part.LineSegment(V(3.93, 0, 0), V(4.15, 0, 0)),
    Part.LineSegment(V(4.15, 0, 0), V(4.38, 0.51, 0)),
    Part.LineSegment(V(4.38, 0.51, 0), V(4.38, -3.5, 0)),
    Part.LineSegment(V(4.38, -3.5, 0), V(3.93, -3.5, 0)),
], False)
sketch16.addConstraint([
    Sketcher.Constraint("Coincident", 0, 2, 1, 1),
    Sketcher.Constraint("Coincident", 1, 2, 2, 1),
    Sketcher.Constraint("Coincident", 2, 2, 3, 1),
    Sketcher.Constraint("Coincident", 3, 2, 4, 1),
    Sketcher.Constraint("Coincident", 4, 2, 0, 1),
    Sketcher.Constraint("Coincident", 5, 2, 6, 1),
    Sketcher.Constraint("Coincident", 6, 2, 7, 1),
    Sketcher.Constraint("Coincident", 7, 2, 8, 1),
    Sketcher.Constraint("Coincident", 8, 2, 9, 1),
    Sketcher.Constraint("Coincident", 9, 2, 5, 1),
    Sketcher.Constraint("Vertical", 0),
    Sketcher.Constraint("Horizontal", 1),
    Sketcher.Constraint("Vertical", 2),
    Sketcher.Constraint("Horizontal", 4),
    Sketcher.Constraint("Vertical", 5),
    Sketcher.Constraint("Horizontal", 6),
    Sketcher.Constraint("Vertical", 8),
    Sketcher.Constraint("Horizontal", 9),
    Sketcher.Constraint("PointOnObject", 3, 2, -1),
    Sketcher.Constraint("PointOnObject", 5, 2, -1),
    Sketcher.Constraint("Horizontal", 2, 2, 7, 2),
    Sketcher.Constraint("Horizontal", 1, 2, 8, 2),
    Sketcher.Constraint("Equal", 4, 6),
    Sketcher.Constraint("Equal", 1, 9),
    Sketcher.Constraint("DistanceY", 0, 2, 0, 1, 3.5),
    Sketcher.Constraint("DistanceY", 2, 1, 2, 2, 4.01),
    Sketcher.Constraint("DistanceX", 4, 2, 5, 2, 0.5),
    Sketcher.Constraint("DistanceX", 1, 2, 1, 1, 0.445),
    Sketcher.Constraint("DistanceX", -1, 1, 0, 2, 3.43),
    Sketcher.Constraint("DistanceX", 4, 1, 4, 2, 0.2225),
])
sketch16.setExpression("Constraints[24]", "Params.sketch16_height")
sketch16.setExpression("Constraints[25]", "Params.sketch16_height2")
pocket7 = body.newObject("PartDesign::Pocket", "Pocket006")
pocket7.Profile = sketch16
pocket7.Type = "ThroughAll"
pocket7.Reversed = True

sketch17 = body.newObject("Sketcher::SketchObject", "Sketch016")
sketch17.AttachmentSupport = (doc.getObject("XZ_Plane"), [""])
sketch17.MapMode = "FlatFace"
sketch17.AttachmentOffset = App.Placement(V(0, 0, 4.635), App.Rotation())
sketch17.addGeometry([
    Part.LineSegment(V(3.685, 0, 0), V(3.935, 0, 0)),
    Part.LineSegment(V(3.935, 0, 0), V(3.935, 2.295, 0)),
    Part.ArcOfCircle(Part.Circle(V(3.31, 2.295, 0), V(0, 0, 1), 0.625), math.radians(0), math.radians(90)),
    Part.LineSegment(V(3.31, 2.92, 0), V(3.286, 2.92, 0)),
    Part.LineSegment(V(3.286, 2.92, 0), V(3.3, 2.795, 0)),
    Part.LineSegment(V(3.3, 2.795, 0), V(3.286, 2.67, 0)),
    Part.LineSegment(V(3.286, 2.67, 0), V(3.31, 2.67, 0)),
    Part.ArcOfCircle(Part.Circle(V(3.31, 2.295, 0), V(0, 0, 1), 0.375), math.radians(0), math.radians(90)),
    Part.LineSegment(V(3.685, 2.295, 0), V(3.685, 0, 0)),
    Part.LineSegment(V(-3.935, 0, 0), V(-3.685, 0, 0)),
    Part.LineSegment(V(-3.685, 0, 0), V(-3.685, 2.295, 0)),
    Part.ArcOfCircle(Part.Circle(V(-3.31, 2.295, 0), V(0, 0, 1), 0.375), math.radians(90), math.radians(180)),
    Part.LineSegment(V(-3.31, 2.67, 0), V(-3.286, 2.67, 0)),
    Part.LineSegment(V(-3.286, 2.67, 0), V(-3.3, 2.795, 0)),
    Part.LineSegment(V(-3.3, 2.795, 0), V(-3.286, 2.92, 0)),
    Part.LineSegment(V(-3.286, 2.92, 0), V(-3.31, 2.92, 0)),
    Part.ArcOfCircle(Part.Circle(V(-3.31, 2.295, 0), V(0, 0, 1), 0.625), math.radians(90), math.radians(180)),
    Part.LineSegment(V(-3.935, 2.295, 0), V(-3.935, 0, 0)),
], False)
sketch17.addConstraint([
    Sketcher.Constraint("Coincident", 0, 2, 1, 1),
    Sketcher.Constraint("Tangent", 1, 2, 2, 1),
    Sketcher.Constraint("Tangent", 2, 2, 3, 1),
    Sketcher.Constraint("Coincident", 3, 2, 4, 1),
    Sketcher.Constraint("Coincident", 4, 2, 5, 1),
    Sketcher.Constraint("Coincident", 5, 2, 6, 1),
    Sketcher.Constraint("Tangent", 6, 2, 7, 2),
    Sketcher.Constraint("Tangent", 7, 1, 8, 1),
    Sketcher.Constraint("Coincident", 8, 2, 0, 1),
    Sketcher.Constraint("Coincident", 9, 2, 10, 1),
    Sketcher.Constraint("Tangent", 10, 2, 11, 2),
    Sketcher.Constraint("Tangent", 11, 1, 12, 1),
    Sketcher.Constraint("Coincident", 12, 2, 13, 1),
    Sketcher.Constraint("Coincident", 13, 2, 14, 1),
    Sketcher.Constraint("Coincident", 14, 2, 15, 1),
    Sketcher.Constraint("Tangent", 15, 2, 16, 1),
    Sketcher.Constraint("Tangent", 16, 2, 17, 1),
    Sketcher.Constraint("Coincident", 17, 2, 9, 1),
    Sketcher.Constraint("Horizontal", 0),
    Sketcher.Constraint("Vertical", 1),
    Sketcher.Constraint("Horizontal", 3),
    Sketcher.Constraint("Horizontal", 6),
    Sketcher.Constraint("Vertical", 8),
    Sketcher.Constraint("Horizontal", 9),
    Sketcher.Constraint("Vertical", 10),
    Sketcher.Constraint("Horizontal", 12),
    Sketcher.Constraint("Horizontal", 15),
    Sketcher.Constraint("Vertical", 17),
    Sketcher.Constraint("Coincident", 7, 3, 2, 3),
    Sketcher.Constraint("Coincident", 16, 3, 11, 3),
    Sketcher.Constraint("Equal", 7, 11),
    Sketcher.Constraint("Equal", 2, 16),
    Sketcher.Constraint("Symmetric", 8, 2, 9, 2, -1, 1),
    Sketcher.Constraint("Symmetric", 5, 2, 12, 2, -2),
    Sketcher.Constraint("Symmetric", 4, 2, 13, 2, -2),
    Sketcher.Constraint("PointOnObject", 0, 2, -1),
    Sketcher.Constraint("Parallel", 4, 13),
    Sketcher.Constraint("Parallel", 5, 14),
    Sketcher.Constraint("Vertical", 3, 2, 5, 2),
    Sketcher.Constraint("Radius", 2, 0.625),
    Sketcher.Constraint("Radius", 7, 0.375),
    Sketcher.Constraint("DistanceX", -1, 1, 4, 2, 3.3),
    Sketcher.Constraint("DistanceY", 1, 1, 1, 2, 2.295),
    Sketcher.Constraint("DistanceX", -1, 1, 2, 3, 3.31),
    Sketcher.Constraint("DistanceX", 3, 2, 3, 1, 0.023676),
])
pocket8 = body.newObject("PartDesign::Pocket", "Pocket007")
pocket8.Profile = sketch17
pocket8.setExpression("Length", "Params.pocket8_length")

sketch18 = body.newObject("Sketcher::SketchObject", "Sketch017")
sketch18.AttachmentSupport = (doc.getObject("XZ_Plane"), [""])
sketch18.MapMode = "FlatFace"
sketch18.AttachmentOffset = App.Placement(V(0, 0, -4.375), App.Rotation())
sketch18.addGeometry([
    Part.LineSegment(V(-3.685, 0, 0), V(-3.935, 0, 0)),
    Part.LineSegment(V(-3.935, 0, 0), V(-3.935, 2.295, 0)),
    Part.ArcOfCircle(Part.Circle(V(-3.31, 2.295, 0), V(0, 0, 1), 0.625), math.radians(90), math.radians(180)),
    Part.LineSegment(V(-3.31, 2.92, 0), V(-3.286, 2.92, 0)),
    Part.LineSegment(V(-3.286, 2.92, 0), V(-3.3, 2.795, 0)),
    Part.LineSegment(V(-3.3, 2.795, 0), V(-3.286, 2.67, 0)),
    Part.LineSegment(V(-3.286, 2.67, 0), V(-3.31, 2.67, 0)),
    Part.ArcOfCircle(Part.Circle(V(-3.31, 2.295, 0), V(0, 0, 1), 0.375), math.radians(90), math.radians(180)),
    Part.LineSegment(V(-3.685, 2.295, 0), V(-3.685, 0, 0)),
    Part.LineSegment(V(3.935, 0, 0), V(3.685, 0, 0)),
    Part.LineSegment(V(3.685, 0, 0), V(3.685, 2.295, 0)),
    Part.ArcOfCircle(Part.Circle(V(3.31, 2.295, 0), V(0, 0, 1), 0.375), math.radians(0), math.radians(90)),
    Part.LineSegment(V(3.31, 2.67, 0), V(3.286, 2.67, 0)),
    Part.LineSegment(V(3.286, 2.67, 0), V(3.3, 2.795, 0)),
    Part.LineSegment(V(3.3, 2.795, 0), V(3.286, 2.92, 0)),
    Part.LineSegment(V(3.286, 2.92, 0), V(3.31, 2.92, 0)),
    Part.ArcOfCircle(Part.Circle(V(3.31, 2.295, 0), V(0, 0, 1), 0.625), math.radians(0), math.radians(90)),
    Part.LineSegment(V(3.935, 2.295, 0), V(3.935, 0, 0)),
], False)
sketch18.addConstraint([
    Sketcher.Constraint("Coincident", 0, 2, 1, 1),
    Sketcher.Constraint("Tangent", 1, 2, 2, 2),
    Sketcher.Constraint("Tangent", 2, 1, 3, 1),
    Sketcher.Constraint("Coincident", 3, 2, 4, 1),
    Sketcher.Constraint("Coincident", 4, 2, 5, 1),
    Sketcher.Constraint("Coincident", 5, 2, 6, 1),
    Sketcher.Constraint("Tangent", 6, 2, 7, 1),
    Sketcher.Constraint("Tangent", 7, 2, 8, 1),
    Sketcher.Constraint("Coincident", 8, 2, 0, 1),
    Sketcher.Constraint("Coincident", 9, 2, 10, 1),
    Sketcher.Constraint("Tangent", 10, 2, 11, 1),
    Sketcher.Constraint("Tangent", 11, 2, 12, 1),
    Sketcher.Constraint("Coincident", 12, 2, 13, 1),
    Sketcher.Constraint("Coincident", 13, 2, 14, 1),
    Sketcher.Constraint("Coincident", 14, 2, 15, 1),
    Sketcher.Constraint("Tangent", 15, 2, 16, 2),
    Sketcher.Constraint("Tangent", 16, 1, 17, 1),
    Sketcher.Constraint("Coincident", 17, 2, 9, 1),
    Sketcher.Constraint("Horizontal", 0),
    Sketcher.Constraint("Vertical", 1),
    Sketcher.Constraint("Horizontal", 3),
    Sketcher.Constraint("Horizontal", 6),
    Sketcher.Constraint("Vertical", 8),
    Sketcher.Constraint("Horizontal", 9),
    Sketcher.Constraint("Vertical", 10),
    Sketcher.Constraint("Horizontal", 12),
    Sketcher.Constraint("Horizontal", 15),
    Sketcher.Constraint("Vertical", 17),
    Sketcher.Constraint("Coincident", 7, 3, 2, 3),
    Sketcher.Constraint("Coincident", 16, 3, 11, 3),
    Sketcher.Constraint("Equal", 7, 11),
    Sketcher.Constraint("Equal", 2, 16),
    Sketcher.Constraint("Symmetric", 8, 2, 9, 2, -1, 1),
    Sketcher.Constraint("Symmetric", 5, 2, 12, 2, -2),
    Sketcher.Constraint("Symmetric", 4, 2, 13, 2, -2),
    Sketcher.Constraint("PointOnObject", 0, 2, -1),
    Sketcher.Constraint("Parallel", 4, 13),
    Sketcher.Constraint("Parallel", 5, 14),
    Sketcher.Constraint("Vertical", 3, 2, 5, 2),
    Sketcher.Constraint("Radius", 2, 0.625),
    Sketcher.Constraint("Radius", 7, 0.375),
    Sketcher.Constraint("DistanceX", 4, 2, -1, 1, 3.3),
    Sketcher.Constraint("DistanceY", 1, 1, 1, 2, 2.295),
    Sketcher.Constraint("DistanceX", 2, 3, -1, 1, 3.31),
    Sketcher.Constraint("DistanceX", 3, 1, 3, 2, 0.023676),
])
pocket9 = body.newObject("PartDesign::Pocket", "Pocket008")
pocket9.Profile = sketch18
pocket9.setExpression("Length", "Params.pocket9_length")
pocket9.Reversed = True

doc.recompute()
